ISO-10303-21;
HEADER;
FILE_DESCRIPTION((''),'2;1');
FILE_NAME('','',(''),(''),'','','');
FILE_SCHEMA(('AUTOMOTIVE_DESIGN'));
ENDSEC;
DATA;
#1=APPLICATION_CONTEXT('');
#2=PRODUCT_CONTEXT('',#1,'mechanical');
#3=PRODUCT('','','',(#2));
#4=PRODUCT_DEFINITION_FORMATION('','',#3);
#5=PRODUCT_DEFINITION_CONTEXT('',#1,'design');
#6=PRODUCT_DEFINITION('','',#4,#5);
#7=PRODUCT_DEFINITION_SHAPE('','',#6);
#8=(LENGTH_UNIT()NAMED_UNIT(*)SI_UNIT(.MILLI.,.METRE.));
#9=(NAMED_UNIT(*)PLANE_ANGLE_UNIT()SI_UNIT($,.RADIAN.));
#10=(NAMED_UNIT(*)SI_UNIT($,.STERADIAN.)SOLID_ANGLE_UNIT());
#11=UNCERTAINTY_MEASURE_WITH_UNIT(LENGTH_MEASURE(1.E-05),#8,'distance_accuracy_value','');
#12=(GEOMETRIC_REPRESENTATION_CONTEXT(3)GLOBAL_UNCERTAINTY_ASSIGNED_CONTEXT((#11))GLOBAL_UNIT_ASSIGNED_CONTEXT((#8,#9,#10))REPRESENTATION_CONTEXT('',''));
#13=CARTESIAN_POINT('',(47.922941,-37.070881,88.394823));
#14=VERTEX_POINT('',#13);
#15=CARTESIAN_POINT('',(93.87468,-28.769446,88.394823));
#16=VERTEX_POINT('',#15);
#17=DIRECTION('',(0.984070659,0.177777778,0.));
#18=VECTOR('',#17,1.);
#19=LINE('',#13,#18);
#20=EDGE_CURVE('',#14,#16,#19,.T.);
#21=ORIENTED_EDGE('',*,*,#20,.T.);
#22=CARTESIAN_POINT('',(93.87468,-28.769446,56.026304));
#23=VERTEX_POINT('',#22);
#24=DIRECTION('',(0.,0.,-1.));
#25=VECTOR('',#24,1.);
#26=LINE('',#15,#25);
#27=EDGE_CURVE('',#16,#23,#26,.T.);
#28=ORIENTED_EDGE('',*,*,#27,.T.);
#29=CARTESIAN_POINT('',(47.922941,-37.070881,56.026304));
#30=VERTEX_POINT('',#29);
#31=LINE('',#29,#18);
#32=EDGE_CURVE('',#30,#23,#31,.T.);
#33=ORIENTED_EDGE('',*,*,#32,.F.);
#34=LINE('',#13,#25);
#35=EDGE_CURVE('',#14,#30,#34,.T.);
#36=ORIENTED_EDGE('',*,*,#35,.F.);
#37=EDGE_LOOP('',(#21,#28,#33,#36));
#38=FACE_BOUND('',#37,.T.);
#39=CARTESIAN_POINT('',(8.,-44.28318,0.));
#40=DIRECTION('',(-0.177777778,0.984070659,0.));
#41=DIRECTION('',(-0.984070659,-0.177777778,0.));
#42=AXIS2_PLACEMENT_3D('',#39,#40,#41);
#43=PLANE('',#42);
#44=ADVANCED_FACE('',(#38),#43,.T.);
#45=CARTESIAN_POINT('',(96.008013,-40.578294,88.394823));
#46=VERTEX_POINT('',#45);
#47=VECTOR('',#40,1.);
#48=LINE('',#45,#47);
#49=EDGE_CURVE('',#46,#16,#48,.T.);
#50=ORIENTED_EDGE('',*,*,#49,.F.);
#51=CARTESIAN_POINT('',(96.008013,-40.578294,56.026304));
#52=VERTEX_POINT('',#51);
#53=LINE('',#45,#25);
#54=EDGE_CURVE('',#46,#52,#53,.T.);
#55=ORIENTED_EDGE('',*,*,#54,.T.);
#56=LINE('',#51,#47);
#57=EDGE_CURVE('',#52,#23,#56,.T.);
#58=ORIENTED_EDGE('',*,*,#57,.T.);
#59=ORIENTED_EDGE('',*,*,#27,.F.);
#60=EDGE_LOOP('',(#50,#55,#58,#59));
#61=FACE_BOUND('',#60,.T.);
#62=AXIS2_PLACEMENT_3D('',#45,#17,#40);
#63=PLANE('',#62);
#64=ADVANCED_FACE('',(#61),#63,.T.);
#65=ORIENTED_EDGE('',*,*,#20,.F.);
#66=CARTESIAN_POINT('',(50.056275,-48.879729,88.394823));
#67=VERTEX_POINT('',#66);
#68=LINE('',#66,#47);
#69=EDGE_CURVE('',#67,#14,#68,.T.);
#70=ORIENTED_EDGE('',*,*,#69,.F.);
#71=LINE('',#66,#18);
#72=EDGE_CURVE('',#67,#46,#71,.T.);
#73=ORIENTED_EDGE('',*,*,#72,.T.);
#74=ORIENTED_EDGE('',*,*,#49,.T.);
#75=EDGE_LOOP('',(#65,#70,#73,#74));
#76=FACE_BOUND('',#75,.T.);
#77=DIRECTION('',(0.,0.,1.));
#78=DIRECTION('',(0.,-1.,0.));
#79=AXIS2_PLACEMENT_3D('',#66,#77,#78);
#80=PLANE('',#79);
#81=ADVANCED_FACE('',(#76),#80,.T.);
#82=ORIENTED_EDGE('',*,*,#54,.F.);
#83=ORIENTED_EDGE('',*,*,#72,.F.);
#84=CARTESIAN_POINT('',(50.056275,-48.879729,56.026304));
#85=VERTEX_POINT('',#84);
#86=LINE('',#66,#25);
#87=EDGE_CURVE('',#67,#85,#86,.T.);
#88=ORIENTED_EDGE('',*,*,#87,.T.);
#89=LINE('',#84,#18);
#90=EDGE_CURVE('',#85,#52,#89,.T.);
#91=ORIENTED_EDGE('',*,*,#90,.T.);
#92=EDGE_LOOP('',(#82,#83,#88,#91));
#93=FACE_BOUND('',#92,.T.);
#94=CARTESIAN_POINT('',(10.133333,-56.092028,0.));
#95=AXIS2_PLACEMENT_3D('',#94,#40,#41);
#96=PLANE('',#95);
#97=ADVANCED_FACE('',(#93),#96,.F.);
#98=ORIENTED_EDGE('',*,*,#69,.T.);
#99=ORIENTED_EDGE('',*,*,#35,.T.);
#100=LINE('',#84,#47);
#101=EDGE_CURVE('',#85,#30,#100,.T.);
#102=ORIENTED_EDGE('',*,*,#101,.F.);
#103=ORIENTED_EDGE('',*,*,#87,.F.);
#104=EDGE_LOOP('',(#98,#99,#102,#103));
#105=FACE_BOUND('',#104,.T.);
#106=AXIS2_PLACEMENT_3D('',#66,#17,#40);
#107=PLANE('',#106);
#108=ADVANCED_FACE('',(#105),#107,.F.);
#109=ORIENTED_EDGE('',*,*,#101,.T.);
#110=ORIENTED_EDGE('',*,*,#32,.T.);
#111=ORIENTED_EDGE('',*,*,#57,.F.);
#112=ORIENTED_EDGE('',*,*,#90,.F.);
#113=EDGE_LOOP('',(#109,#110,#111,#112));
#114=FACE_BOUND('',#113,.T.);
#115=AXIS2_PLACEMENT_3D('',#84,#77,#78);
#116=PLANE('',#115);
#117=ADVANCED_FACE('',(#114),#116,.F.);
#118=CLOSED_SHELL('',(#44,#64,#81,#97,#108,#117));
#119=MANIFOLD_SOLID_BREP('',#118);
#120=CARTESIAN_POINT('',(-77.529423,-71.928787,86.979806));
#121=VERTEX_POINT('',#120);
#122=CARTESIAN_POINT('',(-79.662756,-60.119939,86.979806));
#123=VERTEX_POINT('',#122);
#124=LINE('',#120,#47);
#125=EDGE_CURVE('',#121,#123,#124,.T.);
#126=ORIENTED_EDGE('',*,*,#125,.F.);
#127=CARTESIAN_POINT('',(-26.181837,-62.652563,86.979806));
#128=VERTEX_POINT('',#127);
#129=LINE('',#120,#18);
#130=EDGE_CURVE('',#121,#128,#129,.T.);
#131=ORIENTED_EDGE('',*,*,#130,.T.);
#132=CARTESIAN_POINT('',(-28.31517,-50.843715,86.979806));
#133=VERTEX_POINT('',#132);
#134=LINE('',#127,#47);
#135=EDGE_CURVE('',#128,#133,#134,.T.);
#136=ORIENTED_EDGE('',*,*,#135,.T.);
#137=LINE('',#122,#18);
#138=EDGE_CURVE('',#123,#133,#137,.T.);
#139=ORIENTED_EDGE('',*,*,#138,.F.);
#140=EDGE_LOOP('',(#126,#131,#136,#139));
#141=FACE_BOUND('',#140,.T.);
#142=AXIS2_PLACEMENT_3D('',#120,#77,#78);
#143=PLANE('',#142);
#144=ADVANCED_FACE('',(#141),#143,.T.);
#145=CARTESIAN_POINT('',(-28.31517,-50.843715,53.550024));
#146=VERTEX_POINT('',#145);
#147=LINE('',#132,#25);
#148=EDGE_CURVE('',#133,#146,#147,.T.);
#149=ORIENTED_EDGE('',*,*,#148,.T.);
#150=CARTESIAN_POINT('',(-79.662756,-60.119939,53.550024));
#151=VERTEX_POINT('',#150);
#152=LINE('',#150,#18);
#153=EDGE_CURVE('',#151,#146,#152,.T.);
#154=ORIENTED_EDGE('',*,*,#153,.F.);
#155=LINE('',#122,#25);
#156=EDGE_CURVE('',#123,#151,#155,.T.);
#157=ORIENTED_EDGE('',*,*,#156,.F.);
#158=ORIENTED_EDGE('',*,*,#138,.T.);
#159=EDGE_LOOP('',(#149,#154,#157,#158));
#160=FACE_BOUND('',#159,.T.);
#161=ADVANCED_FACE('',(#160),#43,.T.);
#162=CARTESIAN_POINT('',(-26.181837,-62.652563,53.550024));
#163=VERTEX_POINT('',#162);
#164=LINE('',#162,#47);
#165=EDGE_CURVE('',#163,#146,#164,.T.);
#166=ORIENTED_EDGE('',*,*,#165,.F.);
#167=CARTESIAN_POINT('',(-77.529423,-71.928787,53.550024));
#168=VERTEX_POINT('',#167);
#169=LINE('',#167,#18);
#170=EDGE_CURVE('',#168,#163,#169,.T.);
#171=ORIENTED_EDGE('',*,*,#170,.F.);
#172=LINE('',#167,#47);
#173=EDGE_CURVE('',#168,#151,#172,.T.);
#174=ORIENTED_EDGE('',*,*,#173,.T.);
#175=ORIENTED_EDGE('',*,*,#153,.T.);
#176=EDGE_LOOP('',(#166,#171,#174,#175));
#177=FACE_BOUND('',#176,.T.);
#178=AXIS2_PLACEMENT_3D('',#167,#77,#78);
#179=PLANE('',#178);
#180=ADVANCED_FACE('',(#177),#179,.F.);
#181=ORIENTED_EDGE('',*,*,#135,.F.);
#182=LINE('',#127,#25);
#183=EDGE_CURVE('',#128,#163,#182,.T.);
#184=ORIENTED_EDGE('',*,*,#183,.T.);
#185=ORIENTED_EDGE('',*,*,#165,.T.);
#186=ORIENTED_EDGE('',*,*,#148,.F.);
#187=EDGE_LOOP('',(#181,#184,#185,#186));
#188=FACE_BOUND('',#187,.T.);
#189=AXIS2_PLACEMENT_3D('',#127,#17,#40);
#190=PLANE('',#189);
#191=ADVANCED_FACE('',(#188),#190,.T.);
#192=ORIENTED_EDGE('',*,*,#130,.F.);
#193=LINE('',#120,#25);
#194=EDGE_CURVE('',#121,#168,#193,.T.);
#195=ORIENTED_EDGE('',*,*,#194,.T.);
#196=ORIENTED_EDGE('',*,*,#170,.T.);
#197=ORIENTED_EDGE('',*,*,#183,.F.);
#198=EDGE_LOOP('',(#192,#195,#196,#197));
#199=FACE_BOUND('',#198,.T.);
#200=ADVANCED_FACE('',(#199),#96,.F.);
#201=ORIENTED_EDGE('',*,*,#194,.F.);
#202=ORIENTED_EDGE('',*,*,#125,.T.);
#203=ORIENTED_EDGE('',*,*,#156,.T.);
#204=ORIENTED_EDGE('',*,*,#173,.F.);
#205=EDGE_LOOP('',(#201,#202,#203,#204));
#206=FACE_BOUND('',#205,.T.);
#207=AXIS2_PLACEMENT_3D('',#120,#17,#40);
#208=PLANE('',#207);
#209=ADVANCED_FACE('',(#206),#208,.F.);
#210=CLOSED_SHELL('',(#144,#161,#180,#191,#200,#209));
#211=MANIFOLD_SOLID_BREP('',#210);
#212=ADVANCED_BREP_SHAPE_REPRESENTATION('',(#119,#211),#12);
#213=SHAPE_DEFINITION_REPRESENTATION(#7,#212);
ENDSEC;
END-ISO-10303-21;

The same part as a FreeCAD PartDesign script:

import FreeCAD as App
import Part
import Sketcher

V = App.Vector
Q = App.Units.Quantity


def add_polygon(sketch, points):
    """Adds a closed chain of lines whose ends are joined by coincident constraints."""
    first, n = sketch.GeometryCount, len(points)
    for a, b in zip(points, points[1:] + points[:1]):
        sketch.addGeometry(Part.LineSegment(App.Vector(*a, 0), App.Vector(*b, 0)), False)
    for i in range(n):
        sketch.addConstraint(Sketcher.Constraint("Coincident", first + i, 2, first + (i + 1) % n, 1))

doc = App.newDocument("Part")
body = doc.addObject("PartDesign::Body", "Body")

sketch1 = body.newObject("Sketcher::SketchObject", "Sketch")
sketch1.Placement = App.Placement(V(8, -44.28318, 0), App.Rotation(V(0.984070659, 0.177777778, 0), V(0, 0, 1), V(0.177777778, -0.984070659, 0), "ZXY"))
add_polygon(sketch1, [(-89, 87), (-89, 54), (-37, 54), (-37, 87)])
sketch1.addConstraint([
    Sketcher.Constraint("Vertical", 0),
    Sketcher.Constraint("Horizontal", 1),
    Sketcher.Constraint("Vertical", 2),
    Sketcher.Constraint("Horizontal", 3),
    Sketcher.Constraint("DistanceX", 1, 1, 1, 2, Q("52.17876 mm")),
    Sketcher.Constraint("DistanceY", 0, 2, 0, 1, Q("33.429782 mm")),
    Sketcher.Constraint("DistanceX", 0, 2, -1, 1, Q("89.08177 mm")),
    Sketcher.Constraint("DistanceY", -1, 1, 0, 2, Q("53.550024 mm")),
])
pad1 = body.newObject("PartDesign::Pad", "Pad")
pad1.Profile = sketch1
pad1.Length = 12
body2 = doc.addObject("PartDesign::Body", "Body001")

sketch2 = body2.newObject("Sketcher::SketchObject", "Sketch001")
sketch2.Placement = App.Placement(V(8, -44.28318, 0), App.Rotation(V(0.984070659, 0.177777778, 0), V(0, 0, 1), V(0.177777778, -0.984070659, 0), "ZXY"))
add_polygon(sketch2, [(41, 88), (41, 56), (87, 56), (87, 88)])
sketch2.addConstraint([
    Sketcher.Constraint("Vertical", 0),
    Sketcher.Constraint("Horizontal", 1),
    Sketcher.Constraint("Vertical", 2),
    Sketcher.Constraint("Horizontal", 3),
    Sketcher.Constraint("DistanceY", 0, 2, 0, 1, Q("32.368519 mm")),
    Sketcher.Constraint("DistanceX", 1, 1, 1, 2, Q("46.695568 mm")),
    Sketcher.Constraint("DistanceX", -1, 1, 0, 2, Q("40.569182 mm")),
    Sketcher.Constraint("DistanceY", -1, 1, 0, 2, Q("56.026304 mm")),
])
pad2 = body2.newObject("PartDesign::Pad", "Pad001")
pad2.Profile = sketch2
pad2.Length = 12

doc.recompute()
